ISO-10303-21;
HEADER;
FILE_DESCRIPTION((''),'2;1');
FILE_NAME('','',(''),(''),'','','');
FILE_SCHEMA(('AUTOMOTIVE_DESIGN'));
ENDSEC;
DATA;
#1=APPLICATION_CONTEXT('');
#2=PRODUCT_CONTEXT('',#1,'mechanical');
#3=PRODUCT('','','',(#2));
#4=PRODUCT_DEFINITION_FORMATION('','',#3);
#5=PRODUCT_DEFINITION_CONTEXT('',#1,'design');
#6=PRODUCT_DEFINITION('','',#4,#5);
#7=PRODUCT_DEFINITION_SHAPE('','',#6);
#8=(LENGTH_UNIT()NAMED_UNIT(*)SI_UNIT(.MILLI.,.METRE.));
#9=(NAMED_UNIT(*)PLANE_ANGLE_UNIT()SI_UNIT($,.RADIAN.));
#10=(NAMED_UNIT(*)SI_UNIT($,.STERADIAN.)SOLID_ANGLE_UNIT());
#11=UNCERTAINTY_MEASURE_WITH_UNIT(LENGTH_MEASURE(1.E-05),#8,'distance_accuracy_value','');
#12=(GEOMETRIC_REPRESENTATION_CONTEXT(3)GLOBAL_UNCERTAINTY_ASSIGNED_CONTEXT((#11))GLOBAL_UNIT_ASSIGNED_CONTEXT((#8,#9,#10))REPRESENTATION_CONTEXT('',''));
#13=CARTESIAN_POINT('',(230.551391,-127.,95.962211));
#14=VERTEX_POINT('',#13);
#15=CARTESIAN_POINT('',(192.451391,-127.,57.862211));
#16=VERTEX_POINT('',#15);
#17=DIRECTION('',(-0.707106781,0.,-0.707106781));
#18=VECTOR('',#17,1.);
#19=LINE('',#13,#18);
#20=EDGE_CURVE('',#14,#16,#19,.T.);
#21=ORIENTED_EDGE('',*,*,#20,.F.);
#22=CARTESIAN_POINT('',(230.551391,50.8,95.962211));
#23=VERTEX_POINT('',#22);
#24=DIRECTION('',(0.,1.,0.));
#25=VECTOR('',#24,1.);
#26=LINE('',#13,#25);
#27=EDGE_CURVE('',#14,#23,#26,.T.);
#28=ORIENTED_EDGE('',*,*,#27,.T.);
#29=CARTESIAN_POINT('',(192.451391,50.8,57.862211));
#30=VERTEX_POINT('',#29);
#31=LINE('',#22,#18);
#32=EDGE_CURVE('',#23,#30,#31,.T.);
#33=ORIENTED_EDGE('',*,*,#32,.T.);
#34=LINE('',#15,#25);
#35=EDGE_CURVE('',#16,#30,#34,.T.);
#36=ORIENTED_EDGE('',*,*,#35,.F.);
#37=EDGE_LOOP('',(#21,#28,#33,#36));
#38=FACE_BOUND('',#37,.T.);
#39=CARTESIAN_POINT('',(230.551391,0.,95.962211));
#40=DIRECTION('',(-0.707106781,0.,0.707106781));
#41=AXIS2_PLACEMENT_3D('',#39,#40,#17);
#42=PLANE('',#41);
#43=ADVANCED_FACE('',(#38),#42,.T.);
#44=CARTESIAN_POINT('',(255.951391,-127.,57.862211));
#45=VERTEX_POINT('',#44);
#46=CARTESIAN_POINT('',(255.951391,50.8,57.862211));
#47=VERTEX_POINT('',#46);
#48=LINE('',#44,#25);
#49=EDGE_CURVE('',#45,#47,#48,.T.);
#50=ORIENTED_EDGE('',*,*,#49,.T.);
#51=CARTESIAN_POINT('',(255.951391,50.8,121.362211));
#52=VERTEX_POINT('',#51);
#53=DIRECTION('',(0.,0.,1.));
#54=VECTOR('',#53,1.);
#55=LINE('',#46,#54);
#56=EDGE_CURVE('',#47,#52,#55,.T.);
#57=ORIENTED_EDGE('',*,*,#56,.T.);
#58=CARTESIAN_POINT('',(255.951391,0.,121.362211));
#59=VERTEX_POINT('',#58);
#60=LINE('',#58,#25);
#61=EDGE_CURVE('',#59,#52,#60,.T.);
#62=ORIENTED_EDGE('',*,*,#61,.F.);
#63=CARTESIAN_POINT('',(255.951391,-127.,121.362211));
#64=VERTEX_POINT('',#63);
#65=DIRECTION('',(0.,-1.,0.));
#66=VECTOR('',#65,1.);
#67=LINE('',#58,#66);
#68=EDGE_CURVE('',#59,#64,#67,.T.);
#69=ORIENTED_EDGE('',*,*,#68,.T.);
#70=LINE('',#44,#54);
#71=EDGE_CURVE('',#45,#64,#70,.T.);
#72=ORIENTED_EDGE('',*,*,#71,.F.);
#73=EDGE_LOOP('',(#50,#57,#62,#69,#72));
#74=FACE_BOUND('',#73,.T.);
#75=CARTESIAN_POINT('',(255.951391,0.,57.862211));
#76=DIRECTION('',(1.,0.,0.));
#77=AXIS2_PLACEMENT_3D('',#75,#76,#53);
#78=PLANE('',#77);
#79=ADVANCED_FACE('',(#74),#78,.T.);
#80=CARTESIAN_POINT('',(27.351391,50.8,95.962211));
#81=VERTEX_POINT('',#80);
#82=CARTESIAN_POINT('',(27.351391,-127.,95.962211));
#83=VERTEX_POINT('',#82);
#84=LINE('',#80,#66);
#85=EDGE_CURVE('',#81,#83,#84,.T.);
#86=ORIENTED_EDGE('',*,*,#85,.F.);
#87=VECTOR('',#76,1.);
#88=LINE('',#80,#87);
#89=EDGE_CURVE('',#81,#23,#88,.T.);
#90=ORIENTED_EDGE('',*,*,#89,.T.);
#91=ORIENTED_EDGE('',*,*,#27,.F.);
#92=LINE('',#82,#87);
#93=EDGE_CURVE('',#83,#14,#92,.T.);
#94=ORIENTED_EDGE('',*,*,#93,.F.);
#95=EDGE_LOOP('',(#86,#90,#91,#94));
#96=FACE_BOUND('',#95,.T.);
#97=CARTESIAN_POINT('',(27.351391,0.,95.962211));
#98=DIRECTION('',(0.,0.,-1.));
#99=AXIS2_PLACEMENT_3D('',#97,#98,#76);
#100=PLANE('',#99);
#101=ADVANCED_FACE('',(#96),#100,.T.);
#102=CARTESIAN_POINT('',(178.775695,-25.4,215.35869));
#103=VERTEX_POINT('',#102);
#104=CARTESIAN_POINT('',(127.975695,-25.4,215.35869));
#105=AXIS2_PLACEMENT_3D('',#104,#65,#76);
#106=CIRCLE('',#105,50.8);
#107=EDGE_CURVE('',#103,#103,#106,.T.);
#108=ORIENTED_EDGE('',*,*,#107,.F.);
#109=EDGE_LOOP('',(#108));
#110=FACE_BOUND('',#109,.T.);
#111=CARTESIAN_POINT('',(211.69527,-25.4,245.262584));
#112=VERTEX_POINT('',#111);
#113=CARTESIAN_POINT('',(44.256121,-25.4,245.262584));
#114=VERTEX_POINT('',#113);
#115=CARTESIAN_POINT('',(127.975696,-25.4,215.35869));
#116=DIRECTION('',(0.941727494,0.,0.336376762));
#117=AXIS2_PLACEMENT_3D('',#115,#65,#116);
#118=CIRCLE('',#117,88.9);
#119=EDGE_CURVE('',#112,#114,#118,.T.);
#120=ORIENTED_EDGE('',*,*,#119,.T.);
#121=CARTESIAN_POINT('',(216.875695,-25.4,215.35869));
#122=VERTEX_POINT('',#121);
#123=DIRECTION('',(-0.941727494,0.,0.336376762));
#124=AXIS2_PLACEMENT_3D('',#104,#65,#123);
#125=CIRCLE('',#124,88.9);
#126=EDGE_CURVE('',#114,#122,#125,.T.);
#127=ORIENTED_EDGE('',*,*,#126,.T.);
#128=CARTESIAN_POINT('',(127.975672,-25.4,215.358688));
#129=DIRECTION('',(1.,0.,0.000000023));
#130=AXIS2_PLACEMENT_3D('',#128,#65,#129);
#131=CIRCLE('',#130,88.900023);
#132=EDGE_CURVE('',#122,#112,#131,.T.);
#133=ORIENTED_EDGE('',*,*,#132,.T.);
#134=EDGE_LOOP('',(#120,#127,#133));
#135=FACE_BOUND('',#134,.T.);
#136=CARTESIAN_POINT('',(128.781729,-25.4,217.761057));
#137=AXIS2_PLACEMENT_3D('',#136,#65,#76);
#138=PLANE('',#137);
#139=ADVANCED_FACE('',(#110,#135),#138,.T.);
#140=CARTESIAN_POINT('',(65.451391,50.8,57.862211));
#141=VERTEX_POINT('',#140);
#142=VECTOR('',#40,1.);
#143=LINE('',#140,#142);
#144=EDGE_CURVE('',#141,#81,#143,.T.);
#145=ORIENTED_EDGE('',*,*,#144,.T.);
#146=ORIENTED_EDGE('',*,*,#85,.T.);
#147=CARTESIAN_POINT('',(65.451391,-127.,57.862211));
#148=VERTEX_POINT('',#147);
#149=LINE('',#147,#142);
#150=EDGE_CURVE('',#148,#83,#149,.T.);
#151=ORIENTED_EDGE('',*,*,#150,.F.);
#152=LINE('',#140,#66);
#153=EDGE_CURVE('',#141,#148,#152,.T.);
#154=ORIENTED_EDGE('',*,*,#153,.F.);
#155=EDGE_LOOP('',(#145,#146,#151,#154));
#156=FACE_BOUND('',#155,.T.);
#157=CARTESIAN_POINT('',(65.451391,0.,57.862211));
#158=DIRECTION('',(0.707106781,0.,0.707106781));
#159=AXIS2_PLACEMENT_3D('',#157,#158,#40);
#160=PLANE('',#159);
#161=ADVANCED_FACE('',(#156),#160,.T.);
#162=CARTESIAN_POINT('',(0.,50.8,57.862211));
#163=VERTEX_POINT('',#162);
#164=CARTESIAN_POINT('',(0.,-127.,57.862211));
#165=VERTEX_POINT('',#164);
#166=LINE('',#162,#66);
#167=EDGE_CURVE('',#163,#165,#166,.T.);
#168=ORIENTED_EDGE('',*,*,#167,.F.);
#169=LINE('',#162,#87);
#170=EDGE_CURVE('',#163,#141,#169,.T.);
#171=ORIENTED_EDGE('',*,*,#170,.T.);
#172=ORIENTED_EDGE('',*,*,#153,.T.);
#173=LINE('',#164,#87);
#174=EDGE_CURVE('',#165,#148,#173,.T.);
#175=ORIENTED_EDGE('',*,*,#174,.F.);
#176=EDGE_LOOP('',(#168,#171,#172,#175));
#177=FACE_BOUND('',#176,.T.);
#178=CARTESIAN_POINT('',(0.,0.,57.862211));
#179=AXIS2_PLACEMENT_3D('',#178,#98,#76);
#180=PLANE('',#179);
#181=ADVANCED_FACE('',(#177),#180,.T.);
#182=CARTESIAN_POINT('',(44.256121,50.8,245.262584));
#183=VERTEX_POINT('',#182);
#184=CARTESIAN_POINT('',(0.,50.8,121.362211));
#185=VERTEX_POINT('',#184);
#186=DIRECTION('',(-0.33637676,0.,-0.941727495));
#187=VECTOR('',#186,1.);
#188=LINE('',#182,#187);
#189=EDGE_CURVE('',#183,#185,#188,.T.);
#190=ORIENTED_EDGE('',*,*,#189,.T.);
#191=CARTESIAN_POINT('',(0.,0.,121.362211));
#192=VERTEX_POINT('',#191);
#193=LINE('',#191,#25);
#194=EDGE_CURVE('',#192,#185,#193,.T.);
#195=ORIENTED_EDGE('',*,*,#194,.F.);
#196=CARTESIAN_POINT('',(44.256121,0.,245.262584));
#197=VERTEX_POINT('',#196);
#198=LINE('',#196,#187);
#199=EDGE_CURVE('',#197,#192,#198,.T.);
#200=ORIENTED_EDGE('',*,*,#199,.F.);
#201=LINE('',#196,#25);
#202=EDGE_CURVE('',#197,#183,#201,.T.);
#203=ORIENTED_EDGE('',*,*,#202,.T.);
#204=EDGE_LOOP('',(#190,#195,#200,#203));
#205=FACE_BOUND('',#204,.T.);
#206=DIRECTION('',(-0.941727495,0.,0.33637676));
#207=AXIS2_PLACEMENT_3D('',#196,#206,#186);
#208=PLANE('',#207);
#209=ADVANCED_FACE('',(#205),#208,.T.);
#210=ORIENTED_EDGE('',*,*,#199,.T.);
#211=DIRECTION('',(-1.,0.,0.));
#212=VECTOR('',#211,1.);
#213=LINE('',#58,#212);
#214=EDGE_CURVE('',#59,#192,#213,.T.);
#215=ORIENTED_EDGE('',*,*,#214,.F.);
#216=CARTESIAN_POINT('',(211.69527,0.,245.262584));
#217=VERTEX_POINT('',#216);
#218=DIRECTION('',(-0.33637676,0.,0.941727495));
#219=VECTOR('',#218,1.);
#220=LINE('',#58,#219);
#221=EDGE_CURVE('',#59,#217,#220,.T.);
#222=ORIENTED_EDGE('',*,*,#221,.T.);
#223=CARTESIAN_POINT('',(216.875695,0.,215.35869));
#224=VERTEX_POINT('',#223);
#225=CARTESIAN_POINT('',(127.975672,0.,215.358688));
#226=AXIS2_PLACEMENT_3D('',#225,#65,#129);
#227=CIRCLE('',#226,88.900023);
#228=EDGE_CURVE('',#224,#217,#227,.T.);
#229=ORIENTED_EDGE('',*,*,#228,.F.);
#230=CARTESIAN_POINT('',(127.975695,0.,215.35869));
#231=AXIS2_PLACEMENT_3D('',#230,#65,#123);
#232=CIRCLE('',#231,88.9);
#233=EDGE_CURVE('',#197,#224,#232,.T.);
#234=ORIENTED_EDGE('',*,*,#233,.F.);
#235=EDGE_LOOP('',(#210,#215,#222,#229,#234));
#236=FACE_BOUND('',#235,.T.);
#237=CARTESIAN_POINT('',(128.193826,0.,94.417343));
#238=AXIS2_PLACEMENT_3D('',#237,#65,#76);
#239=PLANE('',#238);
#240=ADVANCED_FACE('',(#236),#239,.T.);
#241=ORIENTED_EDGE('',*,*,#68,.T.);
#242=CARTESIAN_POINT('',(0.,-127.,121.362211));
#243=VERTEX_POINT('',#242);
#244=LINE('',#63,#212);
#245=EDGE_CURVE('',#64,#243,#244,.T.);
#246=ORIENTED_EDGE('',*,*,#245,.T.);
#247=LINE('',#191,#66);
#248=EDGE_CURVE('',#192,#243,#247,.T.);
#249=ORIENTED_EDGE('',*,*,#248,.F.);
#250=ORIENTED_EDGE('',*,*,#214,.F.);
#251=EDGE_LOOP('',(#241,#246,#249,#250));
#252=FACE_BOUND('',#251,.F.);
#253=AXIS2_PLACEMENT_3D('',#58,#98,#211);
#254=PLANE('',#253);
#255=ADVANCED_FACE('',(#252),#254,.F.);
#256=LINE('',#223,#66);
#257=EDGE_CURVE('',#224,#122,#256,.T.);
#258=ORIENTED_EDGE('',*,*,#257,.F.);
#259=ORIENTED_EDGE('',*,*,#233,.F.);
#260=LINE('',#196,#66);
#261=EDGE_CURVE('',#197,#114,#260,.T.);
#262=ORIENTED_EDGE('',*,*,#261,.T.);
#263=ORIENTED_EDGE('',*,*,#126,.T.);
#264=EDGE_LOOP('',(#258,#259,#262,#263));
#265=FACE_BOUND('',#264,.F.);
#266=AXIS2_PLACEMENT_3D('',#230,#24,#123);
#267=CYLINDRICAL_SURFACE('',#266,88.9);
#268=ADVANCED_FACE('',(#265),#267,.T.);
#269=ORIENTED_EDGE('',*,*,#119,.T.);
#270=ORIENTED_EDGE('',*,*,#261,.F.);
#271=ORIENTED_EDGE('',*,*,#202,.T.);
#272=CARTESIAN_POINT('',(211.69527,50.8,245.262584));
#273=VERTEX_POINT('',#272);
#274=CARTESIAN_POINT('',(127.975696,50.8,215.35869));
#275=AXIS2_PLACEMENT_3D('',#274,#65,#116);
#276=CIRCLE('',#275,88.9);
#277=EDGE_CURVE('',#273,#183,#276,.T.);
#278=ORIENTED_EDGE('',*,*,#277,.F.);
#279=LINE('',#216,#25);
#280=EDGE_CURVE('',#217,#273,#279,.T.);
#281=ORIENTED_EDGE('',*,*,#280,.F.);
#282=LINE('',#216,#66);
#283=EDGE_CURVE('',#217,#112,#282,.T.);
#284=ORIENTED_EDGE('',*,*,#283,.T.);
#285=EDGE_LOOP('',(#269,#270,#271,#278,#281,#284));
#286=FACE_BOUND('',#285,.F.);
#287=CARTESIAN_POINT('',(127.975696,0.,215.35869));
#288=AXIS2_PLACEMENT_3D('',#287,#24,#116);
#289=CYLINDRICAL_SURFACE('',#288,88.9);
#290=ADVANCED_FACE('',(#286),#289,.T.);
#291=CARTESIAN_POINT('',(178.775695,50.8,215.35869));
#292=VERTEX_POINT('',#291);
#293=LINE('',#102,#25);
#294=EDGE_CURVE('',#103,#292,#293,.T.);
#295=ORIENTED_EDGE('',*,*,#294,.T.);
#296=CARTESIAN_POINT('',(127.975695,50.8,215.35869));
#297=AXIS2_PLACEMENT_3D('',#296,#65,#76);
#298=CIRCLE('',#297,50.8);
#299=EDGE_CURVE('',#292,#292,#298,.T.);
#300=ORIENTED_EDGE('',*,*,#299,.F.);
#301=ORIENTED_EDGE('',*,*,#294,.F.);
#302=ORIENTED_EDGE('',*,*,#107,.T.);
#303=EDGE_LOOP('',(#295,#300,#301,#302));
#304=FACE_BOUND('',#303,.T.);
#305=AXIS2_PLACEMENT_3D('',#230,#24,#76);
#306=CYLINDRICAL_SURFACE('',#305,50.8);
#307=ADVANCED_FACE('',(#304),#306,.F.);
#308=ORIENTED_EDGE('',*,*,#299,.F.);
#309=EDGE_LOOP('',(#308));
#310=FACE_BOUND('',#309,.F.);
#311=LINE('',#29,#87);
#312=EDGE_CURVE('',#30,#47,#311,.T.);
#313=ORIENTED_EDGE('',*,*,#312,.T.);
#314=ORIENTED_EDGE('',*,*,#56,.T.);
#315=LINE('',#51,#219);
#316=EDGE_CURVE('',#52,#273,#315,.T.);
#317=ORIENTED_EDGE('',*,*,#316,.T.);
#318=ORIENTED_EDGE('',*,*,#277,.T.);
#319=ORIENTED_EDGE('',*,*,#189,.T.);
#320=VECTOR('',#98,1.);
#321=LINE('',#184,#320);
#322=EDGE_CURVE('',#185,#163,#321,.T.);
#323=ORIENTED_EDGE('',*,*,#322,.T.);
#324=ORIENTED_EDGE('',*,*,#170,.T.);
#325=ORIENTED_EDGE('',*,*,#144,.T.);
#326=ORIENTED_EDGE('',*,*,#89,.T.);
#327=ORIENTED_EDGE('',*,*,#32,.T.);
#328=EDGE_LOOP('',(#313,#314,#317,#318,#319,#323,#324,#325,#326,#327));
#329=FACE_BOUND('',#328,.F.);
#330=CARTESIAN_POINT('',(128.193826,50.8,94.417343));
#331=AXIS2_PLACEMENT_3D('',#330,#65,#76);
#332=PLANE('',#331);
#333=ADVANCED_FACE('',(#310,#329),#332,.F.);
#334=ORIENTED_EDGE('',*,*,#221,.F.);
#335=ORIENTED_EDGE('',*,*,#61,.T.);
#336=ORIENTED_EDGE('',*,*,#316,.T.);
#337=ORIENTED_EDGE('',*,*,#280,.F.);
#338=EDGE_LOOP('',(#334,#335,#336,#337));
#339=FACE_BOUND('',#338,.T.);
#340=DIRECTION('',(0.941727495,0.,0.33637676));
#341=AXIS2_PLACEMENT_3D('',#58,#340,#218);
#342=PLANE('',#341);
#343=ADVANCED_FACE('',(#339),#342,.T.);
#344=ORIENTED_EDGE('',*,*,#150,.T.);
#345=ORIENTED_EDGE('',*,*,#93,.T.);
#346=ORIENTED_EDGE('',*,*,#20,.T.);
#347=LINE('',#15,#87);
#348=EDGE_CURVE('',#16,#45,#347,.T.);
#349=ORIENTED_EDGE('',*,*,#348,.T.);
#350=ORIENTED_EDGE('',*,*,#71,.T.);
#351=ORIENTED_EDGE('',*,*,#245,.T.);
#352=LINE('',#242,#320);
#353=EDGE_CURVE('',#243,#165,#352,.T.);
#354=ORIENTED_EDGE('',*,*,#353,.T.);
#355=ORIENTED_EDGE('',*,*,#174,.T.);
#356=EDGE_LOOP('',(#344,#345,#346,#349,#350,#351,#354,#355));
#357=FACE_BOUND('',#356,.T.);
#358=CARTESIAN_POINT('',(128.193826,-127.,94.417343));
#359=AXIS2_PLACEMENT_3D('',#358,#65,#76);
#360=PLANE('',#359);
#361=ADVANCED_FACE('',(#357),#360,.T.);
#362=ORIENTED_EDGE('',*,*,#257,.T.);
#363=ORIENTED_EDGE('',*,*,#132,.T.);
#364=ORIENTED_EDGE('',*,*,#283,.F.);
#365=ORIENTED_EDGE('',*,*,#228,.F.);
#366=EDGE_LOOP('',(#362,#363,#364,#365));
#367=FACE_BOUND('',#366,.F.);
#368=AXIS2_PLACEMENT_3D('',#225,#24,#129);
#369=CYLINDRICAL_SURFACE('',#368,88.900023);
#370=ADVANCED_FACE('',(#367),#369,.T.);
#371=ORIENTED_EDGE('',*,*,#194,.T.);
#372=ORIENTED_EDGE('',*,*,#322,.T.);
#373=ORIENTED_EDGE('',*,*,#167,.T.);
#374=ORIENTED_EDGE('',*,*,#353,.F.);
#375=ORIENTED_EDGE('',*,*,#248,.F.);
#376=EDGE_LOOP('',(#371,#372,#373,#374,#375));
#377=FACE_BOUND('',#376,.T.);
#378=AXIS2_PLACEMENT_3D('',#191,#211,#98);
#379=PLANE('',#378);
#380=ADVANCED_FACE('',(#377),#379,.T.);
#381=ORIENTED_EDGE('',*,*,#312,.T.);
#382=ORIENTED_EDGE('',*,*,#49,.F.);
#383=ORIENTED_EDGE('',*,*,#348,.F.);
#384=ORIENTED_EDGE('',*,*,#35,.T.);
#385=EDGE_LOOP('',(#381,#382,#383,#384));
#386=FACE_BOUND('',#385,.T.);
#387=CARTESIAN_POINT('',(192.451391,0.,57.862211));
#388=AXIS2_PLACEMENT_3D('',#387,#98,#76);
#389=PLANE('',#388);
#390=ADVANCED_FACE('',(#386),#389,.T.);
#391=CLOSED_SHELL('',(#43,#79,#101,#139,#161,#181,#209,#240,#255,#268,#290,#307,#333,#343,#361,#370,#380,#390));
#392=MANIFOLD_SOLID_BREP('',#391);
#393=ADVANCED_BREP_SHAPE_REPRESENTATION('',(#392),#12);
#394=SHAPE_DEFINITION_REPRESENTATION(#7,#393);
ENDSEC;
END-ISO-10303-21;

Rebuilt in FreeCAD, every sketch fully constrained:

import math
import FreeCAD as App
import Part
import Sketcher
Q = App.Units.Quantity


def add_polygon(sketch, points):
    """Adds a closed chain of lines whose ends are joined by coincident constraints."""
    first, n = sketch.GeometryCount, len(points)
    for a, b in zip(points, points[1:] + points[:1]):
        sketch.addGeometry(Part.LineSegment(App.Vector(*a, 0), App.Vector(*b, 0)), False)
    for i in range(n):
        sketch.addConstraint(Sketcher.Constraint("Coincident", first + i, 2, first + (i + 1) % n, 1))

doc = App.newDocument("Part")
body = doc.addObject("PartDesign::Body", "Body")

sketch1 = doc.addObject("Sketcher::SketchObject", "Sketch")
body.addObject(sketch1)
sketch1.AttachmentSupport = (doc.XZ_Plane, [""])
sketch1.MapMode = "FlatFace"
add_polygon(sketch1, [(256, 58), (256, 121), (0, 121), (0, 58), (65, 58), (27, 96), (231, 96), (192, 58)])
sketch1.addConstraint([
    Sketcher.Constraint("Vertical", 0),
    Sketcher.Constraint("Horizontal", 1),
    Sketcher.Constraint("Vertical", 2),
    Sketcher.Constraint("Horizontal", 3),
    Sketcher.Constraint("Horizontal", 5),
    Sketcher.Constraint("Horizontal", 7),
    Sketcher.Constraint("PointOnObject", 1, 2, -2),
    Sketcher.Constraint("Perpendicular", 4, 6),
    Sketcher.Constraint("Horizontal", 3, 2, 6, 2),
    Sketcher.Constraint("Equal", 7, 0),
    Sketcher.Constraint("Equal", 4, 6),
    Sketcher.Constraint("DistanceX", 5, 1, 5, 2, Q("8 in")),
    Sketcher.Constraint("DistanceX", 7, 1, 7, 2, Q("2.5 in")),
    Sketcher.Constraint("DistanceY", 4, 2, 1, 2, Q("1 in")),
    Sketcher.Constraint("DistanceX", 1, 2, 1, 1, Q("255.951391 mm")),
    Sketcher.Constraint("DistanceY", -1, 1, 0, 2, Q("121.362211 mm")),
])
pad1 = doc.addObject("PartDesign::Pad", "Pad")
body.addObject(pad1)
pad1.Profile = sketch1
pad1.Length = Q("5 in")

sketch2 = doc.addObject("Sketcher::SketchObject", "Sketch001")
body.addObject(sketch2)
sketch2.AttachmentSupport = (doc.XZ_Plane, [""])
sketch2.MapMode = "FlatFace"
sketch2.addGeometry([
    Part.LineSegment(App.Vector(256, 58, 0), App.Vector(256, 121, 0)),
    Part.LineSegment(App.Vector(256, 121, 0), App.Vector(212, 245, 0)),
    Part.ArcOfCircle(Part.Circle(App.Vector(128, 215, 0), App.Vector(0, 0, 1), 89), math.radians(20), math.radians(160)),
    Part.LineSegment(App.Vector(44, 245, 0), App.Vector(0, 121, 0)),
    Part.LineSegment(App.Vector(0, 121, 0), App.Vector(0, 58, 0)),
    Part.LineSegment(App.Vector(0, 58, 0), App.Vector(65, 58, 0)),
    Part.LineSegment(App.Vector(65, 58, 0), App.Vector(27, 96, 0)),
    Part.LineSegment(App.Vector(27, 96, 0), App.Vector(231, 96, 0)),
    Part.LineSegment(App.Vector(231, 96, 0), App.Vector(192, 58, 0)),
    Part.LineSegment(App.Vector(192, 58, 0), App.Vector(256, 58, 0)),
    Part.Circle(App.Vector(128, 215, 0), App.Vector(0, 0, 1), 51),
], False)
sketch2.addConstraint([
    Sketcher.Constraint("Coincident", 0, 2, 1, 1),
    Sketcher.Constraint("Tangent", 1, 2, 2, 1),
    Sketcher.Constraint("Tangent", 2, 2, 3, 1),
    Sketcher.Constraint("Coincident", 3, 2, 4, 1),
    Sketcher.Constraint("Coincident", 4, 2, 5, 1),
    Sketcher.Constraint("Coincident", 5, 2, 6, 1),
    Sketcher.Constraint("Coincident", 6, 2, 7, 1),
    Sketcher.Constraint("Coincident", 7, 2, 8, 1),
    Sketcher.Constraint("Coincident", 8, 2, 9, 1),
    Sketcher.Constraint("Coincident", 9, 2, 0, 1),
    Sketcher.Constraint("Vertical", 0),
    Sketcher.Constraint("Vertical", 4),
    Sketcher.Constraint("Horizontal", 5),
    Sketcher.Constraint("Horizontal", 7),
    Sketcher.Constraint("Horizontal", 9),
    Sketcher.Constraint("Coincident", 10, 3, 2, 3),
    Sketcher.Constraint("PointOnObject", 3, 2, -2),
    Sketcher.Constraint("Perpendicular", 6, 8),
    Sketcher.Constraint("Horizontal", 1, 2, 2, 2),
    Sketcher.Constraint("Horizontal", 0, 2, 3, 2),
    Sketcher.Constraint("Horizontal", 5, 2, 8, 2),
    Sketcher.Constraint("Equal", 9, 0),
    Sketcher.Constraint("Equal", 6, 8),
    Sketcher.Constraint("Diameter", 10, Q("4 in")),
    Sketcher.Constraint("Radius", 2, Q("3.5 in")),
    Sketcher.Constraint("DistanceX", 7, 1, 7, 2, Q("8 in")),
    Sketcher.Constraint("DistanceX", 9, 1, 9, 2, Q("2.5 in")),
    Sketcher.Constraint("DistanceY", 6, 2, 3, 2, Q("1 in")),
    Sketcher.Constraint("DistanceX", 5, 1, 5, 2, Q("65.451391 mm")),
    Sketcher.Constraint("Distance", 1, Q("131.567119 mm")),
    Sketcher.Constraint("DistanceY", -1, 1, 2, 3, Q("215.35869 mm")),
])
pad2 = doc.addObject("PartDesign::Pad", "Pad001")
body.addObject(pad2)
pad2.Profile = sketch2
pad2.Length = Q("2 in")
pad2.Reversed = True

sketch3 = doc.addObject("Sketcher::SketchObject", "Sketch002")
body.addObject(sketch3)
sketch3.AttachmentSupport = (doc.XZ_Plane, [""])
sketch3.MapMode = "FlatFace"
sketch3.addGeometry([
    Part.ArcOfCircle(Part.Circle(App.Vector(127.975672, 215.358688, 0), App.Vector(0, 0, 1), 88.900023), math.radians(0.000001), math.radians(19.656276)),
    Part.ArcOfCircle(Part.Circle(App.Vector(127.975696, 215.35869, 0), App.Vector(0, 0, 1), 88.9), math.radians(19.65628), math.radians(160.34372)),
    Part.ArcOfCircle(Part.Circle(App.Vector(127.975695, 215.35869, 0), App.Vector(0, 0, 1), 88.9), math.radians(160.34372), math.radians(360)),
    Part.Circle(App.Vector(127.975695, 215.35869, 0), App.Vector(0, 0, 1), 50.8),
], False)
sketch3.addConstraint([
    Sketcher.Constraint("Coincident", 0, 2, 1, 1),
    Sketcher.Constraint("Coincident", 1, 2, 2, 1),
    Sketcher.Constraint("Coincident", 2, 2, 0, 1),
    Sketcher.Constraint("Coincident", 2, 3, 1, 3),
    Sketcher.Constraint("Coincident", 3, 3, 1, 3),
    Sketcher.Constraint("Diameter", 3, Q("4 in")),
    Sketcher.Constraint("Radius", 1, Q("3.5 in")),
    Sketcher.Constraint("Radius", 0, Q("88.900023 mm")),
    Sketcher.Constraint("DistanceY", -1, 1, 1, 3, Q("215.35869 mm")),
    Sketcher.Constraint("DistanceX", -1, 1, 0, 2, Q("211.69527 mm")),
    Sketcher.Constraint("DistanceX", -1, 1, 1, 2, Q("44.256121 mm")),
    Sketcher.Constraint("DistanceY", -1, 1, 2, 2, Q("215.35869 mm")),
    Sketcher.Constraint("DistanceX", 1, 2, 0, 3, Q("83.719551 mm")),
])
pad3 = doc.addObject("PartDesign::Pad", "Pad002")
body.addObject(pad3)
pad3.Profile = sketch3
pad3.Length = Q("1 in")

doc.recompute()
